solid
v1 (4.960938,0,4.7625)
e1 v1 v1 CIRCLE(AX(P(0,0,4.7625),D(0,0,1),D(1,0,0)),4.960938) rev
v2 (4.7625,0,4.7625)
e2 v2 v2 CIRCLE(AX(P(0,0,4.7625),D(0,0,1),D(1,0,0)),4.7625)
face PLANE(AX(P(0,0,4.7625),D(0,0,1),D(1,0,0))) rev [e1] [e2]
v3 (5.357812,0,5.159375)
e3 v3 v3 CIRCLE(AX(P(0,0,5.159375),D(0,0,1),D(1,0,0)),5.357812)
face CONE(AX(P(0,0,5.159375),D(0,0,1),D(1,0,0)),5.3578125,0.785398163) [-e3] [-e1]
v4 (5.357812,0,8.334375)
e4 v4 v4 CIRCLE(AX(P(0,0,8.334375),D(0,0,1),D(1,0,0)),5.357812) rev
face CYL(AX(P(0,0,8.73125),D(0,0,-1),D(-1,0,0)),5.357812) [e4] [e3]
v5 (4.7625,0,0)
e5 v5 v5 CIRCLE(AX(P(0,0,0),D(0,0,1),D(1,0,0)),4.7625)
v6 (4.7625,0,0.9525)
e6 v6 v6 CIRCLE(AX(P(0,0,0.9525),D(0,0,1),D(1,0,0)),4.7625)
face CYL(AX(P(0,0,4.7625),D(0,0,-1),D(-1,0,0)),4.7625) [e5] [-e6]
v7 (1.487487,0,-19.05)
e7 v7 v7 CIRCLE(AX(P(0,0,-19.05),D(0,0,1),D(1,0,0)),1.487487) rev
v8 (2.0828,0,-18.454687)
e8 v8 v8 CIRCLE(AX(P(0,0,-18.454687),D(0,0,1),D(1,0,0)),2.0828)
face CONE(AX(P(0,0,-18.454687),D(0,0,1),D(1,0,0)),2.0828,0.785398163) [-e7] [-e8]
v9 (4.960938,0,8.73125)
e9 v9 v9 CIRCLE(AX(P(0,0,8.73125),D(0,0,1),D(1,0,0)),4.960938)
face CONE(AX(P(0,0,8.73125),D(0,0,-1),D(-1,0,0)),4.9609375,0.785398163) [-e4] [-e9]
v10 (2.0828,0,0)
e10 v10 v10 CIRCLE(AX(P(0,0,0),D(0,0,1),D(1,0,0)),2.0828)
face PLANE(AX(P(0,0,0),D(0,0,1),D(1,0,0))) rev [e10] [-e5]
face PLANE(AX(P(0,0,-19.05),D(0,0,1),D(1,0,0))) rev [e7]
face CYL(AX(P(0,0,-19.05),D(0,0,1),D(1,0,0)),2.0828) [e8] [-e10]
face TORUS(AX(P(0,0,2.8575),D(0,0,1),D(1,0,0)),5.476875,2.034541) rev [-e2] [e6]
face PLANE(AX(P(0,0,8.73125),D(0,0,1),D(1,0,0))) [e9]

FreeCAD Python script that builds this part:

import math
import FreeCAD as App
import Part
import Sketcher

V = App.Vector
Q = App.Units.Quantity


def edges_at(feature, points):
    """Names of the edges that pass closest to the given points."""
    edges = feature.Shape.Edges
    near = lambda p: min(range(len(edges)), key=lambda i: edges[i].distToShape(Part.Vertex(*p))[0])
    return sorted({f"Edge{near(p) + 1}" for p in points})

doc = App.newDocument("Part")
params = doc.addObject("Spreadsheet::Sheet", "Params")
for row, (alias, value) in enumerate([
    ("sketch1_diameter", "0.164 in"),
    ("pad1_length", "0.75 in"),
    ("chamfer_size", "0.595313 mm"),
    ("sketch2_diameter", "0.375 in"),
    ("pad2_length", "0.1875 in"),
    ("sketch3_diameter", "0.421875 in"),
    ("pad3_length", "0.15625 in"),
    ("sketch4_height", "0.15 in"),
    ("groove_angle", "360 deg"),
    ("chamfer2_size", "0.015625 in"),
], start=1):
    params.set(f"A{row}", alias)
    params.set(f"B{row}", "=" + value)
    params.setAlias(f"B{row}", alias)

body = doc.addObject("PartDesign::Body", "Body")

# Sketch on XY plane
sketch1 = body.newObject("Sketcher::SketchObject", "Sketch")
sketch1.AttachmentSupport = (doc.getObject("XY_Plane"), [""])
sketch1.MapMode = "FlatFace"
sketch1.addGeometry(Part.Circle(V(0, 0, 0), V(0, 0, 1), 2.0828), False)
sketch1.addConstraint(Sketcher.Constraint("Coincident", 0, 3, -1, 1))
sketch1.addConstraint(Sketcher.Constraint("Diameter", 0, Q("0.164 in")))
sketch1.setExpression("Constraints[1]", "Params.sketch1_diameter")
pad1 = body.newObject("PartDesign::Pad", "Pad")
pad1.Profile = sketch1
pad1.setExpression("Length", "Params.pad1_length")
pad1.Reversed = True
doc.recompute()

chamfer = body.newObject("PartDesign::Chamfer", "Chamfer")
chamfer.Base = (pad1, edges_at(pad1, [(-2.083, 0, -19.05)]))
chamfer.setExpression("Size", "Params.chamfer_size")

# Sketch on XY plane
sketch2 = body.newObject("Sketcher::SketchObject", "Sketch001")
sketch2.AttachmentSupport = (doc.getObject("XY_Plane"), [""])
sketch2.MapMode = "FlatFace"
sketch2.addGeometry(Part.Circle(V(0, 0, 0), V(0, 0, 1), 4.7625), False)
sketch2.addConstraint(Sketcher.Constraint("Coincident", 0, 3, -1, 1))
sketch2.addConstraint(Sketcher.Constraint("Diameter", 0, Q("0.375 in")))
sketch2.setExpression("Constraints[1]", "Params.sketch2_diameter")
pad2 = body.newObject("PartDesign::Pad", "Pad001")
pad2.Profile = sketch2
pad2.setExpression("Length", "Params.pad2_length")

# Sketch on XY plane
sketch3 = body.newObject("Sketcher::SketchObject", "Sketch002")
sketch3.AttachmentSupport = (doc.getObject("XY_Plane"), [""])
sketch3.MapMode = "FlatFace"
sketch3.AttachmentOffset = App.Placement(V(0, 0, 0.1875 * 25.4), App.Rotation())
sketch3.addGeometry(Part.Circle(V(0, 0, 0), V(0, 0, 1), 5.357812), False)
sketch3.addConstraint(Sketcher.Constraint("Coincident", 0, 3, -1, 1))
sketch3.addConstraint(Sketcher.Constraint("Diameter", 0, Q("0.421875 in")))
sketch3.setExpression("Constraints[1]", "Params.sketch3_diameter")
pad3 = body.newObject("PartDesign::Pad", "Pad002")
pad3.Profile = sketch3
pad3.setExpression("Length", "Params.pad3_length")

# Sketch on YZ plane
sketch4 = body.newObject("Sketcher::SketchObject", "Sketch003")
sketch4.AttachmentSupport = (doc.getObject("YZ_Plane"), [""])
sketch4.MapMode = "FlatFace"
sketch4.addGeometry(Part.LineSegment(V(4.7625, 0.9525, 0), V(4.7625, 4.7625, 0)), False)
sketch4.addGeometry(Part.ArcOfCircle(Part.Circle(V(5.476875, 2.8575, 0), V(0, 0, 1), 2.034541), math.radians(110.556045), math.radians(249.443955)), False)
sketch4.addConstraint(Sketcher.Constraint("Coincident", 0, 1, 1, 2))
sketch4.addConstraint(Sketcher.Constraint("Coincident", 1, 1, 0, 2))
sketch4.addConstraint(Sketcher.Constraint("Vertical", 0))
sketch4.addConstraint(Sketcher.Constraint("DistanceY", 0, 1, 0, 2, Q("0.15 in")))
sketch4.addConstraint(Sketcher.Constraint("Radius", 1, Q("0.0801 in")))
sketch4.addConstraint(Sketcher.Constraint("DistanceX", -1, 1, 0, 1, Q("0.1875 in")))
sketch4.addConstraint(Sketcher.Constraint("DistanceY", -1, 1, 1, 1, Q("0.1875 in")))
sketch4.setExpression("Constraints[3]", "Params.sketch4_height")
groove = body.newObject("PartDesign::Groove", "Groove")
groove.Profile = sketch4
groove.ReferenceAxis = (sketch4, ["V_Axis"])
groove.setExpression("Angle", "Params.groove_angle")
doc.recompute()

chamfer2 = body.newObject("PartDesign::Chamfer", "Chamfer001")
chamfer2.Base = (groove, edges_at(groove, [(-5.358, 0, 4.763), (-5.358, 0, 8.731)]))
chamfer2.setExpression("Size", "Params.chamfer2_size")

doc.recompute()
